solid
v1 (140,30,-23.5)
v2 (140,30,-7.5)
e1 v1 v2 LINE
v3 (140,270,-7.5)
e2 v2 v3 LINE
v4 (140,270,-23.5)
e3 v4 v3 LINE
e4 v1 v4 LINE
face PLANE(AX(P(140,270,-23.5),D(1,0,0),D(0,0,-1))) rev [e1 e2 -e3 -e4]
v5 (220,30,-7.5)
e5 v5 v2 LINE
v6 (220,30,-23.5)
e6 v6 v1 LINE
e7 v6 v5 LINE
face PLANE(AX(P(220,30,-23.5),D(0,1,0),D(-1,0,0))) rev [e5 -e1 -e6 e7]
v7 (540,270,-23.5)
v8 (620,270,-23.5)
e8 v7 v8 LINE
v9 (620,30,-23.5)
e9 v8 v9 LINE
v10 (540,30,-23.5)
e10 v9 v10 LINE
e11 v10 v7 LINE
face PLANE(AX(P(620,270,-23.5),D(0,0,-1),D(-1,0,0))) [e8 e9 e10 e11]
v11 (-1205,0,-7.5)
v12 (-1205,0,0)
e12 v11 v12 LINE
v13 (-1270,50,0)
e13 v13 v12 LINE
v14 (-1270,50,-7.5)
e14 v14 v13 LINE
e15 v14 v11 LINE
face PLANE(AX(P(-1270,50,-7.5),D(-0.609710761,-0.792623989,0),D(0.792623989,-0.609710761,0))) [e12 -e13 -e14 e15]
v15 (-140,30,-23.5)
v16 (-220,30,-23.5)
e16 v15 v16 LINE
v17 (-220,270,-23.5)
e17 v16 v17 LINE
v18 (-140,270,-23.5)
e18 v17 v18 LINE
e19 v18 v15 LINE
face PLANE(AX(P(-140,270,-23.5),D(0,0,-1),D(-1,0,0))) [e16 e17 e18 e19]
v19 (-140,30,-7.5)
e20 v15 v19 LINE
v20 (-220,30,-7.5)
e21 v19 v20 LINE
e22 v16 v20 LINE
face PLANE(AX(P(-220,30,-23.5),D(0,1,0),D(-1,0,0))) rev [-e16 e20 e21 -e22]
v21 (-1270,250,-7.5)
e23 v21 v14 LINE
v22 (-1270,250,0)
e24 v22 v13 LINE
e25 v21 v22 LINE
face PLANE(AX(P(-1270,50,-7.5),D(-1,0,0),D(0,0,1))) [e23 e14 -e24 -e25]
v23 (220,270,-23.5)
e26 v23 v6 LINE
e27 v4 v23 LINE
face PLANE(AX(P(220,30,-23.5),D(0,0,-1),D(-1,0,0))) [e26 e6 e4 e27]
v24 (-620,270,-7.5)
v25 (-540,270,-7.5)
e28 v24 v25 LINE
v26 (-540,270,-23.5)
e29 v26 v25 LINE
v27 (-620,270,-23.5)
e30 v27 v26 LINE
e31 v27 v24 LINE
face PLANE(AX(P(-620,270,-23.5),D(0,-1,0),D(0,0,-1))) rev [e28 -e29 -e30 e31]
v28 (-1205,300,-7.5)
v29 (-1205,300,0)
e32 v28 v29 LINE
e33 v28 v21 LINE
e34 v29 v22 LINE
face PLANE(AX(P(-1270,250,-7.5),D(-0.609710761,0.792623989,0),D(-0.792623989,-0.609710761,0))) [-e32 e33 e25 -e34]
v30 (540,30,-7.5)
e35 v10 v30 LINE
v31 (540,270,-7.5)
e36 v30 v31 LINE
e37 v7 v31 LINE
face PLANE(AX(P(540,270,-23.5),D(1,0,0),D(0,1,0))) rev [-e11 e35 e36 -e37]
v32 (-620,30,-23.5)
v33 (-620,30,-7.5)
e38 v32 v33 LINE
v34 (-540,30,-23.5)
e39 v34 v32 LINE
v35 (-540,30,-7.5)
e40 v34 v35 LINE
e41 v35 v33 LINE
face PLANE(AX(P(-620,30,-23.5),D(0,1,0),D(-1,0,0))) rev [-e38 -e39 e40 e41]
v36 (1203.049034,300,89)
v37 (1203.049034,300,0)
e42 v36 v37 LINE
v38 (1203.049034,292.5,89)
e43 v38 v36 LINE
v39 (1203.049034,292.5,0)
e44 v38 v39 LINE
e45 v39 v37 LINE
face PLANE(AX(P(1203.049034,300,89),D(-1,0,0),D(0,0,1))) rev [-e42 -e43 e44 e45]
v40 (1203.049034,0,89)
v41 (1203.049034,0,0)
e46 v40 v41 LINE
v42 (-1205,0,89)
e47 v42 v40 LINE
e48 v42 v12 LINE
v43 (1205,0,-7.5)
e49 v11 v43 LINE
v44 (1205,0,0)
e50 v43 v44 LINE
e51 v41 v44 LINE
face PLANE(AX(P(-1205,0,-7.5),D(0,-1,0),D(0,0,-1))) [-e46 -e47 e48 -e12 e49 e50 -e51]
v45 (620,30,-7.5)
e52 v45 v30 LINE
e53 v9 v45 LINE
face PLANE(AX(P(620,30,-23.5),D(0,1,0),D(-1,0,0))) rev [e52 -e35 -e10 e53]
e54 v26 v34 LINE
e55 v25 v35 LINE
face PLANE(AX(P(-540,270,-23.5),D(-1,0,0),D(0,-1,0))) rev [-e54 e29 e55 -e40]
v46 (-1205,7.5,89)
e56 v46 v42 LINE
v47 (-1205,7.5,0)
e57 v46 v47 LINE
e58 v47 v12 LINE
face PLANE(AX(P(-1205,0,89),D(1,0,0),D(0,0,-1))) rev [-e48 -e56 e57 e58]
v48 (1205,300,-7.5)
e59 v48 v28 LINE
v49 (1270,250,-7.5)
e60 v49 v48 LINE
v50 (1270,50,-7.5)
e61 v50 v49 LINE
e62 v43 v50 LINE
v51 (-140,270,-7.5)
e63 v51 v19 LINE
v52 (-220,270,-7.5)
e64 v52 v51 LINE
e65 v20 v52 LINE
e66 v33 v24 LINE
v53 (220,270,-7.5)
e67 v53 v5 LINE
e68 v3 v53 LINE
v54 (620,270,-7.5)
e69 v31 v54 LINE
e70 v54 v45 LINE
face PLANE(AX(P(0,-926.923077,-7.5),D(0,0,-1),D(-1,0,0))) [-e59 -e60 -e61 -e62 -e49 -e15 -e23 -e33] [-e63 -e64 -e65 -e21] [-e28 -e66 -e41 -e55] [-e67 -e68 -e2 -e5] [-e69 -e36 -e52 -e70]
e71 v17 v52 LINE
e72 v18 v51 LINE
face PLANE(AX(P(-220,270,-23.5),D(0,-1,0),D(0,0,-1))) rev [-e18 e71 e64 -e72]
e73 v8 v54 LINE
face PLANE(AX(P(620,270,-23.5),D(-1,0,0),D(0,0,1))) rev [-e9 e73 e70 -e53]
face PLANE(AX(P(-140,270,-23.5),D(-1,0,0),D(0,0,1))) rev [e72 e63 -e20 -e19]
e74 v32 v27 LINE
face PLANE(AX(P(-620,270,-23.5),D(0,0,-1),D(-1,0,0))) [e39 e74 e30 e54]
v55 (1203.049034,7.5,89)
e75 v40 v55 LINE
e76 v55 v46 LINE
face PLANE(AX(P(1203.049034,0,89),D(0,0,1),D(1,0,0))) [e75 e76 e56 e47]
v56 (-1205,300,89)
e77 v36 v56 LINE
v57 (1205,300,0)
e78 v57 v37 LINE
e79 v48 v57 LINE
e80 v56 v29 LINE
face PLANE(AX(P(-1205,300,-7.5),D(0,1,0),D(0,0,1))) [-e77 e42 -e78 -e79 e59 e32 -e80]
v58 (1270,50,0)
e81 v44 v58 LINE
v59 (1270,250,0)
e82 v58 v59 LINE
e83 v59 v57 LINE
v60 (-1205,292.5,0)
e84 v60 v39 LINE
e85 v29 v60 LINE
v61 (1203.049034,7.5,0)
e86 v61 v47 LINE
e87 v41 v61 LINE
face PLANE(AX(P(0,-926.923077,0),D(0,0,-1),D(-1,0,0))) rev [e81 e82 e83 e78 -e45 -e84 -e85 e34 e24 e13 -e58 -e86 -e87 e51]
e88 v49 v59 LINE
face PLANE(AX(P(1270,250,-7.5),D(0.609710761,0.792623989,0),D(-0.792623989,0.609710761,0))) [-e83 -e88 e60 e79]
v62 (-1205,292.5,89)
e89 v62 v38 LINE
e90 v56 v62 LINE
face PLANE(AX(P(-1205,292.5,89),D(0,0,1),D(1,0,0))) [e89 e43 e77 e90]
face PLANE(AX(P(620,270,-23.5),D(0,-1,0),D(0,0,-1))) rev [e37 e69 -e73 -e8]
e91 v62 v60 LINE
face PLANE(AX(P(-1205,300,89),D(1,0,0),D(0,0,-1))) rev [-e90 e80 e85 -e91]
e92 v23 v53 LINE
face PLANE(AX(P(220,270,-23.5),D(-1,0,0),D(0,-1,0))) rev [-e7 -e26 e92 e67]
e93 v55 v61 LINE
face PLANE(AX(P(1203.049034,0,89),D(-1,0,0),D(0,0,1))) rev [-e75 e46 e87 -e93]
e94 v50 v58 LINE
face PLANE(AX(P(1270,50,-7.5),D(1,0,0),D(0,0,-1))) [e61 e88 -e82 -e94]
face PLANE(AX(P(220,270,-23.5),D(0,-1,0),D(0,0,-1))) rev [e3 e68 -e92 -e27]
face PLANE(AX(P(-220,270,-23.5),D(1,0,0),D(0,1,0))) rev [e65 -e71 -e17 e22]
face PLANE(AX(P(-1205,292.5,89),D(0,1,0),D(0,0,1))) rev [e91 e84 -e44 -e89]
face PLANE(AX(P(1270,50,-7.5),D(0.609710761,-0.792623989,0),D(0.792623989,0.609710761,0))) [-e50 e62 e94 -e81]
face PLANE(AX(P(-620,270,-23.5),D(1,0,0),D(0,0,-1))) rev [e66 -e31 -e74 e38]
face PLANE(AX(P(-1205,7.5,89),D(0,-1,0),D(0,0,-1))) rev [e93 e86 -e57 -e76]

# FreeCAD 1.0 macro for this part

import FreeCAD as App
import Part
import Sketcher


def add_polygon(sketch, points):
    """Adds a closed chain of lines whose ends are joined by coincident constraints."""
    first, n = sketch.GeometryCount, len(points)
    for a, b in zip(points, points[1:] + points[:1]):
        sketch.addGeometry(Part.LineSegment(App.Vector(*a, 0), App.Vector(*b, 0)), False)
    for i in range(n):
        sketch.addConstraint(Sketcher.Constraint("Coincident", first + i, 2, first + (i + 1) % n, 1))

doc = App.newDocument("Part")
body = doc.addObject("PartDesign::Body", "Body")

# Sketch on XY plane
sketch1 = body.newObject("Sketcher::SketchObject", "Sketch")
sketch1.AttachmentSupport = (doc.getObject("XY_Plane"), [""])
sketch1.MapMode = "FlatFace"
add_polygon(sketch1, [(-1205, 0), (1205, 0), (1270, 50), (1270, 250), (1205, 300), (-1205, 300), (-1270, 250), (-1270, 50)])  # lines 0-7
sketch1.addConstraint([
    Sketcher.Constraint("Horizontal", 0),
    Sketcher.Constraint("Vertical", 2),
    Sketcher.Constraint("Horizontal", 4),
    Sketcher.Constraint("Vertical", 6),
    Sketcher.Constraint("Symmetric", 0, 2, 7, 2, -1, 1),
    Sketcher.Constraint("Symmetric", 2, 2, 5, 2, -2),
    Sketcher.Constraint("Parallel", 1, 5),
    Sketcher.Constraint("Parallel", 3, 7),
    Sketcher.Constraint("Horizontal", 1, 2, 6, 2),
    Sketcher.Constraint("Vertical", 0, 2, 3, 2),
    Sketcher.Constraint("DistanceX", 0, 1, 0, 2, 2410.0),
    Sketcher.Constraint("DistanceY", 2, 1, 2, 2, 200.0),
    Sketcher.Constraint("DistanceX", -1, 1, 1, 2, 1270.0),
    Sketcher.Constraint("DistanceY", -1, 1, 1, 2, 50.0),
])
pad1 = body.newObject("PartDesign::Pad", "Pad")
pad1.Profile = sketch1
pad1.Length = 7.5
pad1.Reversed = True

# Sketch on XY plane
sketch2 = body.newObject("Sketcher::SketchObject", "Sketch001")
sketch2.AttachmentSupport = (doc.getObject("XY_Plane"), [""])
sketch2.MapMode = "FlatFace"
add_polygon(sketch2, [(-1205, 300), (-1205, 292), (1203, 292), (1203, 300)])  # lines 0-3
add_polygon(sketch2, [(-1205, 8), (-1205, 0), (1203, 0), (1203, 8)])  # lines 4-7
sketch2.addConstraint([
    Sketcher.Constraint("Vertical", 0),
    Sketcher.Constraint("Horizontal", 1),
    Sketcher.Constraint("Vertical", 2),
    Sketcher.Constraint("Horizontal", 3),
    Sketcher.Constraint("Vertical", 4),
    Sketcher.Constraint("Horizontal", 5),
    Sketcher.Constraint("Vertical", 6),
    Sketcher.Constraint("Horizontal", 7),
    Sketcher.Constraint("PointOnObject", 4, 2, -1),
    Sketcher.Constraint("Vertical", 3, 2, 4, 2),
    Sketcher.Constraint("Vertical", 2, 2, 5, 2),
    Sketcher.Constraint("Equal", 2, 4),
    Sketcher.Constraint("DistanceY", 0, 2, 0, 1, 7.5),
    Sketcher.Constraint("DistanceX", 0, 2, -1, 1, 1205.0),
    Sketcher.Constraint("DistanceY", -1, 1, 2, 2, 300.0),
    Sketcher.Constraint("DistanceX", 1, 1, 1, 2, 2408.049034),
])
pad2 = body.newObject("PartDesign::Pad", "Pad001")
pad2.Profile = sketch2
pad2.Length = 89

# Sketch on XY plane
sketch3 = body.newObject("Sketcher::SketchObject", "Sketch002")
sketch3.AttachmentSupport = (doc.getObject("XY_Plane"), [""])
sketch3.MapMode = "FlatFace"
sketch3.AttachmentOffset = App.Placement(App.Vector(0, 0, -7.5), App.Rotation())
add_polygon(sketch3, [(620, 270), (620, 30), (540, 30), (540, 270)])  # lines 0-3
add_polygon(sketch3, [(220, 270), (220, 30), (140, 30), (140, 270)])  # lines 4-7
add_polygon(sketch3, [(-140, 270), (-140, 30), (-220, 30), (-220, 270)])  # lines 8-11
add_polygon(sketch3, [(-540, 270), (-540, 30), (-620, 30), (-620, 270)])  # lines 12-15
sketch3.addConstraint([
    Sketcher.Constraint("Vertical", 0),
    Sketcher.Constraint("Horizontal", 1),
    Sketcher.Constraint("Vertical", 2),
    Sketcher.Constraint("Horizontal", 3),
    Sketcher.Constraint("Vertical", 4),
    Sketcher.Constraint("Horizontal", 5),
    Sketcher.Constraint("Vertical", 6),
    Sketcher.Constraint("Horizontal", 7),
    Sketcher.Constraint("Vertical", 8),
    Sketcher.Constraint("Horizontal", 9),
    Sketcher.Constraint("Vertical", 10),
    Sketcher.Constraint("Horizontal", 11),
    Sketcher.Constraint("Vertical", 12),
    Sketcher.Constraint("Horizontal", 13),
    Sketcher.Constraint("Vertical", 14),
    Sketcher.Constraint("Horizontal", 15),
    Sketcher.Constraint("Symmetric", 5, 2, 8, 2, -2),
    Sketcher.Constraint("Symmetric", 7, 2, 10, 2, -2),
    Sketcher.Constraint("Symmetric", 1, 2, 12, 2, -2),
    Sketcher.Constraint("Symmetric", 3, 2, 14, 2, -2),
    Sketcher.Constraint("Horizontal", 1, 2, 4, 2),
    Sketcher.Constraint("Horizontal", 3, 2, 6, 2),
    Sketcher.Constraint("Equal", 3, 5),
    Sketcher.Constraint("DistanceX", 1, 2, 1, 1, 80.0),
    Sketcher.Constraint("DistanceY", 0, 2, 0, 1, 240.0),
    Sketcher.Constraint("DistanceX", -1, 1, 0, 2, 620.0),
    Sketcher.Constraint("DistanceY", -1, 1, 0, 2, 30.0),
    Sketcher.Constraint("DistanceX", -1, 1, 4, 2, 220.0),
])
pad3 = body.newObject("PartDesign::Pad", "Pad002")
pad3.Profile = sketch3
pad3.Length = 16
pad3.Reversed = True

doc.recompute()
